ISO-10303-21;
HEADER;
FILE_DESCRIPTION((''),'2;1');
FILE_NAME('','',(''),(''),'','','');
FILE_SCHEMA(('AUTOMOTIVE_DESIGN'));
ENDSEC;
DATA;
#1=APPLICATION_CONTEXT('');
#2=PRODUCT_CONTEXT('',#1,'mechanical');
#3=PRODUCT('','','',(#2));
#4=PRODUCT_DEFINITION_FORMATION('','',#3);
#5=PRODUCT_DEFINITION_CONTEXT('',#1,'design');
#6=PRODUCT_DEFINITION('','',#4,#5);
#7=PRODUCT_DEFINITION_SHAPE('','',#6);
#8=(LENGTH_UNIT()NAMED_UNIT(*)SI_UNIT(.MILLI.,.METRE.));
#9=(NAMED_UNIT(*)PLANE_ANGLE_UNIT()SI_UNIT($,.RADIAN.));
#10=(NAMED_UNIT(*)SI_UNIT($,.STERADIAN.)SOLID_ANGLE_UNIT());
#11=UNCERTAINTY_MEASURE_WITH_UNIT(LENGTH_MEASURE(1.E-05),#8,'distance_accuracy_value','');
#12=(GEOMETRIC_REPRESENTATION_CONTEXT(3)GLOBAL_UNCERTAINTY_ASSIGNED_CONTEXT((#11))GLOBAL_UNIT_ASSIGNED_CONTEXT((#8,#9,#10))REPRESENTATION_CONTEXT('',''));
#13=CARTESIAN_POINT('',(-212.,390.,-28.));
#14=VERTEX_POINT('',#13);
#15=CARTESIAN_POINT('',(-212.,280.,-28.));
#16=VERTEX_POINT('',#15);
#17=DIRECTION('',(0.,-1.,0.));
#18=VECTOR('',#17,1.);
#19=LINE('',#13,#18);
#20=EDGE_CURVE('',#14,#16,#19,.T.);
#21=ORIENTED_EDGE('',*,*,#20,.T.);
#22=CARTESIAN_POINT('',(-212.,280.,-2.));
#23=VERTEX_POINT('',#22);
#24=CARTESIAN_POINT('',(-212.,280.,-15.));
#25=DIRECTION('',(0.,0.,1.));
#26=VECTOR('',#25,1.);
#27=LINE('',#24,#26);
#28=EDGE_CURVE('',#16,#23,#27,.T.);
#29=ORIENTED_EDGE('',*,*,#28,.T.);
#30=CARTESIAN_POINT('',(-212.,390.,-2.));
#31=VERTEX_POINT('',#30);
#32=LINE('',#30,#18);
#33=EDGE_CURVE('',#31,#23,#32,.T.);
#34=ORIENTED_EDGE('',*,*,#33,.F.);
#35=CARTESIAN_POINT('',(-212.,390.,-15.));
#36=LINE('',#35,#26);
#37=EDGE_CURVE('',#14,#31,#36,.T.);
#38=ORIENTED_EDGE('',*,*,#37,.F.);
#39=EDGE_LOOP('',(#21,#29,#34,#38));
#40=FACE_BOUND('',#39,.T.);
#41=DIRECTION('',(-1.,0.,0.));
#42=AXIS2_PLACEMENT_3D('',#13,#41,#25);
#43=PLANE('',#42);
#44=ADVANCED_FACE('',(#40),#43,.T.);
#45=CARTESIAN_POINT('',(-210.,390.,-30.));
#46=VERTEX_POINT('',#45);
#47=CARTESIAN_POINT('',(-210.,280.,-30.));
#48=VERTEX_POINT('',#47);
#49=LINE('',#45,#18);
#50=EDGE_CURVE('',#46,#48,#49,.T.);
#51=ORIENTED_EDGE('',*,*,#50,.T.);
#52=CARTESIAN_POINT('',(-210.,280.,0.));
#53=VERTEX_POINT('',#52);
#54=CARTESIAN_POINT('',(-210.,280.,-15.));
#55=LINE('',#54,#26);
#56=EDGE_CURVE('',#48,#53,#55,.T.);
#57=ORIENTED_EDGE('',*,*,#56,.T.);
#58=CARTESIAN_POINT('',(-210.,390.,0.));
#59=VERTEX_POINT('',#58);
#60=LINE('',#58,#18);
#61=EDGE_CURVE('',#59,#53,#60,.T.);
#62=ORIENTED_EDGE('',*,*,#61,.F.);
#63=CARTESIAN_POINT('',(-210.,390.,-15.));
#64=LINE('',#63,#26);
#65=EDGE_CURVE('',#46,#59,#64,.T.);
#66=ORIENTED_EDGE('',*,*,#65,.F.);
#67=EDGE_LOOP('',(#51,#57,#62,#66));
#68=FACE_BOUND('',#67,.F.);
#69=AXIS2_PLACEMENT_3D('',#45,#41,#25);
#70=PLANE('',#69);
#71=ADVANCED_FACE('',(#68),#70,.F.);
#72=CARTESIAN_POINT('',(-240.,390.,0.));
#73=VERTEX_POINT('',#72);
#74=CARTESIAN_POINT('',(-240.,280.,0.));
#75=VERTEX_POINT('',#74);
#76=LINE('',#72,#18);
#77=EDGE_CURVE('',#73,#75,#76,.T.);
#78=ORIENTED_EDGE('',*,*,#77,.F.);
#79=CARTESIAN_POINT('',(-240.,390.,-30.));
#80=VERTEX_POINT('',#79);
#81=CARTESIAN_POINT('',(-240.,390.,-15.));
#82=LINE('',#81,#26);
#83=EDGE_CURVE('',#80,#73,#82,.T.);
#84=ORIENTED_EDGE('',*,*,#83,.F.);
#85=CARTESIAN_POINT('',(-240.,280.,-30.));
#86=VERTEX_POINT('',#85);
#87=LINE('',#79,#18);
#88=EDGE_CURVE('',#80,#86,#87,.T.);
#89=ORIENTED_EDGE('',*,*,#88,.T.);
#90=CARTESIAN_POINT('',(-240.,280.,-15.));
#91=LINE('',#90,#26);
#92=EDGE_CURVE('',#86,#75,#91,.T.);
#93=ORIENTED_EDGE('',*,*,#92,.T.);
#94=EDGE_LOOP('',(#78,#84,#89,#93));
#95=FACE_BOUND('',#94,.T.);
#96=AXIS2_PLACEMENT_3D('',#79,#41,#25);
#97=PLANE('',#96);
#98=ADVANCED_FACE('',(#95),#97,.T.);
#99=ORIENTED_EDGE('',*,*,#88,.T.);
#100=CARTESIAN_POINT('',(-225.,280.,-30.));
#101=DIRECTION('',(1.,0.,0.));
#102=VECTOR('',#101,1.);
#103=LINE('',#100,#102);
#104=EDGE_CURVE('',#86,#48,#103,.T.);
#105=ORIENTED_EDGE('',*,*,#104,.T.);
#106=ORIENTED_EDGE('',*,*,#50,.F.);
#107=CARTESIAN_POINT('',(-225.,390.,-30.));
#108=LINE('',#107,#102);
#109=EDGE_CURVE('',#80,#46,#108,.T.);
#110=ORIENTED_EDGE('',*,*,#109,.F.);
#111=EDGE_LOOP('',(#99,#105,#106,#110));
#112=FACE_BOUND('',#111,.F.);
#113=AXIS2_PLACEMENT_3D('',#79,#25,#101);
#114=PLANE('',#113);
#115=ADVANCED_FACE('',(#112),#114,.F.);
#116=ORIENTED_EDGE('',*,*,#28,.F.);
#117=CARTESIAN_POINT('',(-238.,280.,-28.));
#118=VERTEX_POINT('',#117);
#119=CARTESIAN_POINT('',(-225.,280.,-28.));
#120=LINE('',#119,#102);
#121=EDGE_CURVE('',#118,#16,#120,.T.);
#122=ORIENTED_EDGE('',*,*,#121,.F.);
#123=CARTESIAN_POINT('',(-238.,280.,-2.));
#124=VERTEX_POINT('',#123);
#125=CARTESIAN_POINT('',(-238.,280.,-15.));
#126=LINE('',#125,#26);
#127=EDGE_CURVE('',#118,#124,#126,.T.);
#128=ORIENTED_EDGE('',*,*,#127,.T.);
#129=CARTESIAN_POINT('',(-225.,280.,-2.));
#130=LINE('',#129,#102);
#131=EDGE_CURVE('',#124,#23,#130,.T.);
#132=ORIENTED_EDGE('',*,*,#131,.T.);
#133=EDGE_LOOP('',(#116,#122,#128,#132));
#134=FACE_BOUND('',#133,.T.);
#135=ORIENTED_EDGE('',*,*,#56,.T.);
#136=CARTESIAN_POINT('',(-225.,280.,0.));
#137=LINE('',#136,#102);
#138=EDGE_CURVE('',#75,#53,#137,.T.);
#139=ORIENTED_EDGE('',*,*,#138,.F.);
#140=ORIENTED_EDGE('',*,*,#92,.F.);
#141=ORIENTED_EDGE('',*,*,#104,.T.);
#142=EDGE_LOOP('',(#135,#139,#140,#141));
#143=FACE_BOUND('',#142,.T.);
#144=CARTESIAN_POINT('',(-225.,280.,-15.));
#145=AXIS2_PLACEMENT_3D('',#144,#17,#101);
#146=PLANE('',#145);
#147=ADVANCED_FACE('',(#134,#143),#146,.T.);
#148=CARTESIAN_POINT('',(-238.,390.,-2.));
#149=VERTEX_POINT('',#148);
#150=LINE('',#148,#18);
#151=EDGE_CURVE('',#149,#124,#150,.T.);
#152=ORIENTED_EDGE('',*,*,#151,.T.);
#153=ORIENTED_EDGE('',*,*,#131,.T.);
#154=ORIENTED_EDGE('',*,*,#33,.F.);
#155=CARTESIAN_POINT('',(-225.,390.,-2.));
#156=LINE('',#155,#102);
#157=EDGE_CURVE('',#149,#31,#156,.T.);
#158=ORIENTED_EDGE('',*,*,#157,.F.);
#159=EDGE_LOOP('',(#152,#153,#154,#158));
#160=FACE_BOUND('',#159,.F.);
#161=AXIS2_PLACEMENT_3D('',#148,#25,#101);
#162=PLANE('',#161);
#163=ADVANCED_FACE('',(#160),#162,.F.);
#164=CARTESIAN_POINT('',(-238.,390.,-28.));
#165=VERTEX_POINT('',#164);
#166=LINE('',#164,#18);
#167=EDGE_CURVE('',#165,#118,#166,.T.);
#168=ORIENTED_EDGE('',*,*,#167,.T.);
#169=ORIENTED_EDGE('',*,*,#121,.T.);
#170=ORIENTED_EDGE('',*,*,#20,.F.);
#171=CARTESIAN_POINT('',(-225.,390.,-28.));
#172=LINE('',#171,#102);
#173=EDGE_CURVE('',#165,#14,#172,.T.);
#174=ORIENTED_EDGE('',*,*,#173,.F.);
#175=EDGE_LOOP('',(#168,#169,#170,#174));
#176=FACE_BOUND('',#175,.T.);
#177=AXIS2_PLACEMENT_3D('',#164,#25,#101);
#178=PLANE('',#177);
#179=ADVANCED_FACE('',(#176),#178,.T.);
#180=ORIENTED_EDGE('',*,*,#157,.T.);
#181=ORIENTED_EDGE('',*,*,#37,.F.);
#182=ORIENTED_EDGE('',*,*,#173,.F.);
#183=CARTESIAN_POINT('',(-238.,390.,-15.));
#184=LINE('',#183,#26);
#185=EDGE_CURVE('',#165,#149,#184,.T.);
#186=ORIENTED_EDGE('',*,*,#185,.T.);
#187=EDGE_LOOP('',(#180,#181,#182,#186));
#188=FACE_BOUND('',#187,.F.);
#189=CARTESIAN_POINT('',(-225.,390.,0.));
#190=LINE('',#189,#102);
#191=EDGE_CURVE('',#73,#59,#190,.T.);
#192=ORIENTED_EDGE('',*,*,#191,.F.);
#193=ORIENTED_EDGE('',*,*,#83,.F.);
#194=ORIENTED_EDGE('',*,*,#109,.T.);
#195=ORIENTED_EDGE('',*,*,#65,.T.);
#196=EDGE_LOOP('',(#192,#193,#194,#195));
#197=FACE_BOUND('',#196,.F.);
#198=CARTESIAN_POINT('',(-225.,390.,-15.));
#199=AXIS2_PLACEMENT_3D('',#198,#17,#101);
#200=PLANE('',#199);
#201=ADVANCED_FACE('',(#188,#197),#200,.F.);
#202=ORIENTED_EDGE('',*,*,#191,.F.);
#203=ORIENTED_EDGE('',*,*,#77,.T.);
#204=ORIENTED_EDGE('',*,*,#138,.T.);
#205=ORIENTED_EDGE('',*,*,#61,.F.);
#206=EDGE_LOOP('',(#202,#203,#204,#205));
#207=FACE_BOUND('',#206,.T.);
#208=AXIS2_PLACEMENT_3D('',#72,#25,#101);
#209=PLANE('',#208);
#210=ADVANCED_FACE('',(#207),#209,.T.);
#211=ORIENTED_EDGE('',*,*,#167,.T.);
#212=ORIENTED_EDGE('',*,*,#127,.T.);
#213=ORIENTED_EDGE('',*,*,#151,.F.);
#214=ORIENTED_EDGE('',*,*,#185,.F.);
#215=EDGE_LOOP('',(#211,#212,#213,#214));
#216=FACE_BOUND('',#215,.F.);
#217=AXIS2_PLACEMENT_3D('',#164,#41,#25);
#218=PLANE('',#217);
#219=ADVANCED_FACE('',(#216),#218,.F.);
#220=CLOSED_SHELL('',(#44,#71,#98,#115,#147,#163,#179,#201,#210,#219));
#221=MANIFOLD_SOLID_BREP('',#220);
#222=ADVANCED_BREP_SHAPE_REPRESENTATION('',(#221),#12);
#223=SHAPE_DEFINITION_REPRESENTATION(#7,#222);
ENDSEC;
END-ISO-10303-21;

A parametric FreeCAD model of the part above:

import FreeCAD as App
import Part
import Sketcher

V = App.Vector
Q = App.Units.Quantity


def add_polygon(sketch, points):
    """Adds a closed chain of lines whose ends are joined by coincident constraints."""
    first, n = sketch.GeometryCount, len(points)
    for a, b in zip(points, points[1:] + points[:1]):
        sketch.addGeometry(Part.LineSegment(App.Vector(*a, 0), App.Vector(*b, 0)), False)
    for i in range(n):
        sketch.addConstraint(Sketcher.Constraint("Coincident", first + i, 2, first + (i + 1) % n, 1))

doc = App.newDocument("Part")
body = doc.addObject("PartDesign::Body", "Body")

# Sketch on XZ plane
sketch1 = body.newObject("Sketcher::SketchObject", "Sketch")
sketch1.AttachmentSupport = (doc.getObject("XZ_Plane"), [""])
sketch1.MapMode = "FlatFace"
add_polygon(sketch1, [(0, 0), (0, -30), (30, -30), (30, 0)])  # lines 0-3
add_polygon(sketch1, [(28, -28), (2, -28), (2, -2), (28, -2)])  # lines 4-7
sketch1.addConstraint(Sketcher.Constraint("Vertical", 0))
sketch1.addConstraint(Sketcher.Constraint("Horizontal", 1))
sketch1.addConstraint(Sketcher.Constraint("Vertical", 2))
sketch1.addConstraint(Sketcher.Constraint("Horizontal", 3))
sketch1.addConstraint(Sketcher.Constraint("Horizontal", 4))
sketch1.addConstraint(Sketcher.Constraint("Vertical", 5))
sketch1.addConstraint(Sketcher.Constraint("Horizontal", 6))
sketch1.addConstraint(Sketcher.Constraint("Vertical", 7))
sketch1.addConstraint(Sketcher.Constraint("Coincident", 3, 2, -1, 1))
sketch1.addConstraint(Sketcher.Constraint("Equal", 3, 0))
sketch1.addConstraint(Sketcher.Constraint("Equal", 6, 5))
sketch1.addConstraint(Sketcher.Constraint("DistanceX", 1, 1, 1, 2, Q("30 mm")))
sketch1.addConstraint(Sketcher.Constraint("DistanceX", 4, 2, 4, 1, Q("26 mm")))
sketch1.addConstraint(Sketcher.Constraint("DistanceX", -1, 1, 4, 2, Q("2 mm")))
sketch1.addConstraint(Sketcher.Constraint("DistanceY", 4, 2, -1, 1, Q("28 mm")))
pad1 = body.newObject("PartDesign::Pad", "Pad")
pad1.Profile = sketch1
pad1.Length = 110
body2 = doc.addObject("PartDesign::Body", "Body001")
doc.recompute()

body.Placement = App.Placement(V(-240, 390, 0), App.Rotation(V(0, 0, 1), 0))
boolean = body2.newObject("PartDesign::Boolean", "Boolean")
boolean.Type = "Fuse"
boolean.addObjects([body])

doc.recompute()
